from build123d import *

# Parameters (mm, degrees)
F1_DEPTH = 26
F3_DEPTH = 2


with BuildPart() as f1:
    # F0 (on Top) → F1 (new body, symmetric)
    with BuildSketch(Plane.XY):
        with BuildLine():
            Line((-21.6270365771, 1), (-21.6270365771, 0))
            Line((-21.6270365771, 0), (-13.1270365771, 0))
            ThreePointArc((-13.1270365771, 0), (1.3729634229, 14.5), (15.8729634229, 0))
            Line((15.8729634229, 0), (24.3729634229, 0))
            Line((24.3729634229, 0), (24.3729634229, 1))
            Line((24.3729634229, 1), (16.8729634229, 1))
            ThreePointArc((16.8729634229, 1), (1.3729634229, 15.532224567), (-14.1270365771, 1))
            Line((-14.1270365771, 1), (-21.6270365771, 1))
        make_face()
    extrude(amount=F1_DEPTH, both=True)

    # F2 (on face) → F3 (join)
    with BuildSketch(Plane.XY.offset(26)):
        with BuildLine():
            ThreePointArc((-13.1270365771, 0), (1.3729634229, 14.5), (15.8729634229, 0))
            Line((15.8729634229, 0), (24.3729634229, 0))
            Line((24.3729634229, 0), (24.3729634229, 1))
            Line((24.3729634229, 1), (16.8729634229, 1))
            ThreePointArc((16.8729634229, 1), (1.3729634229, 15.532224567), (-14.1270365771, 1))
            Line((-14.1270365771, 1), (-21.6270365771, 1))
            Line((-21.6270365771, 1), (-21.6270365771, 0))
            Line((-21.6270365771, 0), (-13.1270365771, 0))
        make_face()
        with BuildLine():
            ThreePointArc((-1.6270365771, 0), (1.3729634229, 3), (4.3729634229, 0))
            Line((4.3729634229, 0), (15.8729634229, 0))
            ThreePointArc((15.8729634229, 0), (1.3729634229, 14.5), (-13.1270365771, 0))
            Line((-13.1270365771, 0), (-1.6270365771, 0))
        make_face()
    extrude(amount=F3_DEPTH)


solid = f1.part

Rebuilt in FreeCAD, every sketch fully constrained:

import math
import FreeCAD as App
import Part
import Sketcher
from FreeCAD import Vector
Q = App.Units.Quantity

doc = App.newDocument("Part")
body = doc.addObject("PartDesign::Body", "Body")

# Sketch on XY plane
sketch1 = body.newObject("Sketcher::SketchObject", "Sketch")
sketch1.AttachmentSupport = (doc.getObject("XY_Plane"), [""])
sketch1.MapMode = "FlatFace"
sketch1.addGeometry(Part.LineSegment(Vector(-21.627037, 1, 0), Vector(-21.627037, 0, 0)), False)
sketch1.addGeometry(Part.LineSegment(Vector(-21.627037, 0, 0), Vector(-13.127037, 0, 0)), False)
sketch1.addGeometry(Part.ArcOfCircle(Part.Circle(Vector(1.372963, 0, 0), Vector(0, 0, 1), 14.5), math.radians(0), math.radians(180)), False)
sketch1.addGeometry(Part.LineSegment(Vector(15.872963, 0, 0), Vector(24.372963, 0, 0)), False)
sketch1.addGeometry(Part.LineSegment(Vector(24.372963, 0, 0), Vector(24.372963, 1, 0)), False)
sketch1.addGeometry(Part.LineSegment(Vector(24.372963, 1, 0), Vector(16.872963, 1, 0)), False)
sketch1.addGeometry(Part.ArcOfCircle(Part.Circle(Vector(1.372963, 0, 0), Vector(0, 0, 1), 15.532225), math.radians(3.691386), math.radians(176.308614)), False)
sketch1.addGeometry(Part.LineSegment(Vector(-14.127037, 1, 0), Vector(-21.627037, 1, 0)), False)
sketch1.addConstraint(Sketcher.Constraint("Coincident", 0, 2, 1, 1))
sketch1.addConstraint(Sketcher.Constraint("Coincident", 1, 2, 2, 2))
sketch1.addConstraint(Sketcher.Constraint("Coincident", 2, 1, 3, 1))
sketch1.addConstraint(Sketcher.Constraint("Coincident", 3, 2, 4, 1))
sketch1.addConstraint(Sketcher.Constraint("Coincident", 4, 2, 5, 1))
sketch1.addConstraint(Sketcher.Constraint("Coincident", 5, 2, 6, 1))
sketch1.addConstraint(Sketcher.Constraint("Coincident", 6, 2, 7, 1))
sketch1.addConstraint(Sketcher.Constraint("Coincident", 7, 2, 0, 1))
sketch1.addConstraint(Sketcher.Constraint("Vertical", 0))
sketch1.addConstraint(Sketcher.Constraint("Horizontal", 1))
sketch1.addConstraint(Sketcher.Constraint("Horizontal", 3))
sketch1.addConstraint(Sketcher.Constraint("Vertical", 4))
sketch1.addConstraint(Sketcher.Constraint("Horizontal", 5))
sketch1.addConstraint(Sketcher.Constraint("Horizontal", 7))
sketch1.addConstraint(Sketcher.Constraint("Coincident", 6, 3, 2, 3))
sketch1.addConstraint(Sketcher.Constraint("PointOnObject", 2, 3, -1))
sketch1.addConstraint(Sketcher.Constraint("PointOnObject", 0, 2, -1))
sketch1.addConstraint(Sketcher.Constraint("PointOnObject", 2, 1, -1))
sketch1.addConstraint(Sketcher.Constraint("Horizontal", 5, 2, 6, 2))
sketch1.addConstraint(Sketcher.Constraint("Equal", 1, 3))
sketch1.addConstraint(Sketcher.Constraint("Radius", 2, Q("14.5 mm")))
sketch1.addConstraint(Sketcher.Constraint("DistanceY", 0, 2, 0, 1, Q("1 mm")))
sketch1.addConstraint(Sketcher.Constraint("DistanceX", 1, 1, 1, 2, Q("8.5 mm")))
sketch1.addConstraint(Sketcher.Constraint("DistanceX", 5, 2, 5, 1, Q("7.5 mm")))
sketch1.addConstraint(Sketcher.Constraint("DistanceX", -1, 1, 2, 3, Q("1.372963 mm")))
pad1 = body.newObject("PartDesign::Pad", "Pad")
pad1.Profile = sketch1
pad1.Length = 52
pad1.Midplane = True

# Sketch on XY plane
sketch2 = body.newObject("Sketcher::SketchObject", "Sketch001")
sketch2.AttachmentSupport = (doc.getObject("XY_Plane"), [""])
sketch2.MapMode = "FlatFace"
sketch2.AttachmentOffset = App.Placement(Vector(0, 0, 26), App.Rotation())
sketch2.addGeometry(Part.LineSegment(Vector(24.372963, 0, 0), Vector(24.372963, 1, 0)), False)
sketch2.addGeometry(Part.LineSegment(Vector(24.372963, 1, 0), Vector(16.872963, 1, 0)), False)
sketch2.addGeometry(Part.ArcOfCircle(Part.Circle(Vector(1.372963, 0, 0), Vector(0, 0, 1), 15.532225), math.radians(3.691386), math.radians(176.308614)), False)
sketch2.addGeometry(Part.LineSegment(Vector(-14.127037, 1, 0), Vector(-21.627037, 1, 0)), False)
sketch2.addGeometry(Part.LineSegment(Vector(-21.627037, 1, 0), Vector(-21.627037, 0, 0)), False)
sketch2.addGeometry(Part.LineSegment(Vector(-21.627037, 0, 0), Vector(-1.627037, 0, 0)), False)
sketch2.addGeometry(Part.ArcOfCircle(Part.Circle(Vector(1.372963, 0, 0), Vector(0, 0, 1), 3), math.radians(0), math.radians(180)), False)
sketch2.addGeometry(Part.LineSegment(Vector(4.372963, 0, 0), Vector(24.372963, 0, 0)), False)
sketch2.addConstraint(Sketcher.Constraint("Coincident", 0, 2, 1, 1))
sketch2.addConstraint(Sketcher.Constraint("Coincident", 1, 2, 2, 1))
sketch2.addConstraint(Sketcher.Constraint("Coincident", 2, 2, 3, 1))
sketch2.addConstraint(Sketcher.Constraint("Coincident", 3, 2, 4, 1))
sketch2.addConstraint(Sketcher.Constraint("Coincident", 4, 2, 5, 1))
sketch2.addConstraint(Sketcher.Constraint("Coincident", 5, 2, 6, 2))
sketch2.addConstraint(Sketcher.Constraint("Coincident", 6, 1, 7, 1))
sketch2.addConstraint(Sketcher.Constraint("Coincident", 7, 2, 0, 1))
sketch2.addConstraint(Sketcher.Constraint("Vertical", 0))
sketch2.addConstraint(Sketcher.Constraint("Horizontal", 1))
sketch2.addConstraint(Sketcher.Constraint("Horizontal", 3))
sketch2.addConstraint(Sketcher.Constraint("Vertical", 4))
sketch2.addConstraint(Sketcher.Constraint("Horizontal", 5))
sketch2.addConstraint(Sketcher.Constraint("Horizontal", 7))
sketch2.addConstraint(Sketcher.Constraint("Coincident", 6, 3, 2, 3))
sketch2.addConstraint(Sketcher.Constraint("PointOnObject", 2, 3, -1))
sketch2.addConstraint(Sketcher.Constraint("PointOnObject", 4, 2, -1))
sketch2.addConstraint(Sketcher.Constraint("PointOnObject", 6, 1, -1))
sketch2.addConstraint(Sketcher.Constraint("Horizontal", 1, 2, 2, 2))
sketch2.addConstraint(Sketcher.Constraint("Equal", 1, 3))
sketch2.addConstraint(Sketcher.Constraint("Radius", 6, Q("3 mm")))
sketch2.addConstraint(Sketcher.Constraint("DistanceX", 5, 1, 5, 2, Q("20 mm")))
sketch2.addConstraint(Sketcher.Constraint("DistanceY", 0, 1, 0, 2, Q("1 mm")))
sketch2.addConstraint(Sketcher.Constraint("DistanceX", 1, 2, 1, 1, Q("7.5 mm")))
sketch2.addConstraint(Sketcher.Constraint("DistanceX", -1, 1, 2, 3, Q("1.372963 mm")))
pad2 = body.newObject("PartDesign::Pad", "Pad001")
pad2.Profile = sketch2
pad2.Length = 2

doc.recompute()
